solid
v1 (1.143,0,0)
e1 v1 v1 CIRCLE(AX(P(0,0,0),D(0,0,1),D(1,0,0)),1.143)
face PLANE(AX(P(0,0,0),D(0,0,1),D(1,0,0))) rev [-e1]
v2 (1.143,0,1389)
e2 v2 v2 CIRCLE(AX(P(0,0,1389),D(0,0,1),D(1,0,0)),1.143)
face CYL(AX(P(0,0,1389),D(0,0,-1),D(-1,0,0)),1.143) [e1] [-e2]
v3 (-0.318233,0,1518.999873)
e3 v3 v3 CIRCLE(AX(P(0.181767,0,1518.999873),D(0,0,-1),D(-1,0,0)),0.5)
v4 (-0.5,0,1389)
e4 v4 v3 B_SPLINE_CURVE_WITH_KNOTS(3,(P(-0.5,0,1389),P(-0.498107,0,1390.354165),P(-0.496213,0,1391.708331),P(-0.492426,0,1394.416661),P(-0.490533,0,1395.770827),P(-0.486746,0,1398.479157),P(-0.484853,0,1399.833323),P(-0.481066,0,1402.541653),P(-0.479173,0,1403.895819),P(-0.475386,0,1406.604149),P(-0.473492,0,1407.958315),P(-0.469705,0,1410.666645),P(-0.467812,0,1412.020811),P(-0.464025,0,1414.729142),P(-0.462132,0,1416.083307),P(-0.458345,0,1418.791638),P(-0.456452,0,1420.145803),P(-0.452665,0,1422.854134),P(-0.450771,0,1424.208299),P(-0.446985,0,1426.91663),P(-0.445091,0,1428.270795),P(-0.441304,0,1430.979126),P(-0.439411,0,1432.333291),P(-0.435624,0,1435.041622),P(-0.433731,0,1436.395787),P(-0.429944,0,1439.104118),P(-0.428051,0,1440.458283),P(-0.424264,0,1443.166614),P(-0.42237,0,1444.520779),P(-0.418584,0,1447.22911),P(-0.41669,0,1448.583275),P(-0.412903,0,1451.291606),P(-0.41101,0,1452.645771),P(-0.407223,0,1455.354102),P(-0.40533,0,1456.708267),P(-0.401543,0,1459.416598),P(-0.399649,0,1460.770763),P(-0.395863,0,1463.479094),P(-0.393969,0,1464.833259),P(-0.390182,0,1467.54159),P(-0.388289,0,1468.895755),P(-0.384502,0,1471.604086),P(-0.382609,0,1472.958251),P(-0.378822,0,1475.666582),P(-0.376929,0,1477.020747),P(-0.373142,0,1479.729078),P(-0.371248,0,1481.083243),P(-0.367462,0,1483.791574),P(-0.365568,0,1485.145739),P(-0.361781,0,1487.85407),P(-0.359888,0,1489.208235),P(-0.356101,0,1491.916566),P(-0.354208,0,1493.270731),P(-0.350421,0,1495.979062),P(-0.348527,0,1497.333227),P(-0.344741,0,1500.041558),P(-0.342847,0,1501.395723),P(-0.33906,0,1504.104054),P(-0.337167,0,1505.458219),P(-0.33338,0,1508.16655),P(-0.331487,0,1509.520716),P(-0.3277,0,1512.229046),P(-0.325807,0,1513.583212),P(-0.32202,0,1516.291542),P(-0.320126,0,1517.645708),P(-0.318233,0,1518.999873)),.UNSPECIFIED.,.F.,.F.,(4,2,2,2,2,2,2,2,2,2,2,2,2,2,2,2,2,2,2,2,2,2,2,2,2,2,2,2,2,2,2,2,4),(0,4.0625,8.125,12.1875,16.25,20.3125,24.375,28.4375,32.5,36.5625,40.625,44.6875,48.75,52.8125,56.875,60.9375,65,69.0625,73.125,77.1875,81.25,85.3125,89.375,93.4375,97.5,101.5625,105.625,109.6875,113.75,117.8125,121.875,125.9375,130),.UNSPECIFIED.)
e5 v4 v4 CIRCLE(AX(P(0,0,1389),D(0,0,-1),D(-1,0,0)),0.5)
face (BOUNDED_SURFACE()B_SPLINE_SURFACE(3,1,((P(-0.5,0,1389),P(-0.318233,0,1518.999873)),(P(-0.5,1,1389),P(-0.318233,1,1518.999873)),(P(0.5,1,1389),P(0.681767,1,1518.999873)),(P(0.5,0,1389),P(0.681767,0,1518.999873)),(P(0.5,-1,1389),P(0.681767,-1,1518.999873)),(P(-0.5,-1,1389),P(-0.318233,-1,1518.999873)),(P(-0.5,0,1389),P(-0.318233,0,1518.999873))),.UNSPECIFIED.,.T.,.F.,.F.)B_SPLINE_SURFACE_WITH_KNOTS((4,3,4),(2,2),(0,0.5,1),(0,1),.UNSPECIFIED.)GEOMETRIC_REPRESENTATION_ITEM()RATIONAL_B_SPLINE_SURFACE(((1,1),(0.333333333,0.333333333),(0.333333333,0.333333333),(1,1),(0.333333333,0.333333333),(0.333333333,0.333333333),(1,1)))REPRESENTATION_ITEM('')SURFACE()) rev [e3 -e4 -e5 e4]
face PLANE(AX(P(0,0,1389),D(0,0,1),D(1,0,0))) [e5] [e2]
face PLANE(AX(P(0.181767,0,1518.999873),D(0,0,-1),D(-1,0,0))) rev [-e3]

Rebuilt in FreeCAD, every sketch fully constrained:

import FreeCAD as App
import Part
import Sketcher

V = App.Vector

doc = App.newDocument("Part")
params = doc.addObject("Spreadsheet::Sheet", "Params")
for row, (alias, value) in enumerate([
    ("pad1_length", "1389 mm"),
    ("sketch2_diameter", "1 mm"),
], start=1):
    params.set(f"A{row}", alias)
    params.set(f"B{row}", "=" + value)
    params.setAlias(f"B{row}", alias)

body = doc.addObject("PartDesign::Body", "Body")

# Sketch on XY plane
sketch1 = body.newObject("Sketcher::SketchObject", "Sketch")
sketch1.AttachmentSupport = (doc.getObject("XY_Plane"), [""])
sketch1.MapMode = "FlatFace"
sketch1.addGeometry(Part.Circle(V(0, 0, 0), V(0, 0, 1), 1.1), False)
sketch1.addConstraint([
    Sketcher.Constraint("Coincident", 0, 3, -1, 1),
    Sketcher.Constraint("Diameter", 0, 2.286),
])
pad1 = body.newObject("PartDesign::Pad", "Pad")
pad1.Profile = sketch1
pad1.setExpression("Length", "Params.pad1_length")

# Sketch on XY plane
sketch2 = body.newObject("Sketcher::SketchObject", "Sketch001")
sketch2.AttachmentSupport = (doc.getObject("XY_Plane"), [""])
sketch2.MapMode = "FlatFace"
sketch2.AttachmentOffset = App.Placement(V(0, 0, 1389), App.Rotation())
sketch2.addGeometry(Part.Circle(V(0, 0, 0), V(0, 0, 1), 0.5), False)
sketch2.addConstraint([
    Sketcher.Constraint("Coincident", 0, 3, -1, 1),
    Sketcher.Constraint("Diameter", 0, 1.0),
])
sketch2.setExpression("Constraints[1]", "Params.sketch2_diameter")

# Sketch on an angled plane
sketch3 = body.newObject("Sketcher::SketchObject", "Sketch002")
sketch3.Placement = App.Placement(V(-1.942109, 0, 0.002715), App.Rotation(V(0.001398208, 0, 0.999999023), V(0, 1.000000001, 0), V(-0.999999023, 0, 0.001398208), "ZXY"))
sketch3.addGeometry(Part.BSplineCurve([V(1388.998644, 0, 0), V(1518.998644, 0, 0)], [2, 2], [0, 1], False, 1, [1, 1], False), False)
sketch3.addConstraint(Sketcher.Constraint("Block", 0))
doc.recompute()

additivepipe = body.newObject("PartDesign::AdditivePipe", "AdditivePipe")
additivepipe.Profile = sketch2
additivepipe.Spine = (sketch3, ["Edge1"])

doc.recompute()
